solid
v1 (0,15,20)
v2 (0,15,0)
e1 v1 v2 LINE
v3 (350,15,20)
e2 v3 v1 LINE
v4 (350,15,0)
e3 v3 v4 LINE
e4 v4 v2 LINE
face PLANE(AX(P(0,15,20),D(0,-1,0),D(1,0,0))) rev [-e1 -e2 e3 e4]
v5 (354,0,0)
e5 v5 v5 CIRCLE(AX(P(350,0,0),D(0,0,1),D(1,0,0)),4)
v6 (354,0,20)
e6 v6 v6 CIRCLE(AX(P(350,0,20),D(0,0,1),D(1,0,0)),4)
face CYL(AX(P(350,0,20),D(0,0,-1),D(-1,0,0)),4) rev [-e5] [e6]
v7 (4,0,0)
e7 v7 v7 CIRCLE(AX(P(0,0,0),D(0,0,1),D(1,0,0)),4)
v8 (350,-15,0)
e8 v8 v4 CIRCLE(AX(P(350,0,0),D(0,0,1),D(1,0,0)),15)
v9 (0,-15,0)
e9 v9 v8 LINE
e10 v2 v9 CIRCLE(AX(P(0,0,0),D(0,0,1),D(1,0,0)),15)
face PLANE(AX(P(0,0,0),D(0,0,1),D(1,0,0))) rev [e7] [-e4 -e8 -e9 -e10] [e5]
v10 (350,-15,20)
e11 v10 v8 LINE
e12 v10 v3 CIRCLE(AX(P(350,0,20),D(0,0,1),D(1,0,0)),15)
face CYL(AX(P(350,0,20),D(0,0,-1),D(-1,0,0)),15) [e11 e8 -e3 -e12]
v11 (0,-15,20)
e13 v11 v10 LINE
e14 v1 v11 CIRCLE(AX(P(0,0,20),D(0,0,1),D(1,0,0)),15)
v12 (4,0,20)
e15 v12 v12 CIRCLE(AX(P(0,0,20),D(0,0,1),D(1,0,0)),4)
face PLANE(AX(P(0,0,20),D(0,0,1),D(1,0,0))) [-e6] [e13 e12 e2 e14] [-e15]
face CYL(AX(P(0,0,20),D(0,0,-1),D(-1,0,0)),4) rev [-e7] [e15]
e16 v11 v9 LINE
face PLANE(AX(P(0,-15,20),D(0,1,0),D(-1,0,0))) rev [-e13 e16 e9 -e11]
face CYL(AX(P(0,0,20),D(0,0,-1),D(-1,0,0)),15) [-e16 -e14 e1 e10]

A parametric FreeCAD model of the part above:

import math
import FreeCAD as App
import Part
import Sketcher

doc = App.newDocument("Part")
params = doc.addObject("Spreadsheet::Sheet", "Params")
for row, (alias, value) in enumerate([
    ("sketch1_radius", "15 mm"),
    ("sketch1_width", "350 mm"),
    ("pad1_length", "20 mm"),
    ("sketch2_diameter", "8 mm"),
    ("pocket1_length", "20 mm"),
], start=1):
    params.set(f"A{row}", alias)
    params.set(f"B{row}", "=" + value)
    params.setAlias(f"B{row}", alias)

body = doc.addObject("PartDesign::Body", "Body")

# Sketch on XY plane
sketch1 = body.newObject("Sketcher::SketchObject", "Sketch")
sketch1.AttachmentSupport = (doc.getObject("XY_Plane"), [""])
sketch1.MapMode = "FlatFace"
sketch1.addGeometry(Part.LineSegment(App.Vector(0, -15, 0), App.Vector(350, -15, 0)), False)
sketch1.addGeometry(Part.ArcOfCircle(Part.Circle(App.Vector(350, 0, 0), App.Vector(0, 0, 1), 15), math.radians(-90), math.radians(90)), False)
sketch1.addGeometry(Part.LineSegment(App.Vector(350, 15, 0), App.Vector(0, 15, 0)), False)
sketch1.addGeometry(Part.ArcOfCircle(Part.Circle(App.Vector(0, 0, 0), App.Vector(0, 0, 1), 15), math.radians(90), math.radians(270)), False)
sketch1.addConstraint(Sketcher.Constraint("Tangent", 0, 2, 1, 1))
sketch1.addConstraint(Sketcher.Constraint("Tangent", 1, 2, 2, 1))
sketch1.addConstraint(Sketcher.Constraint("Tangent", 2, 2, 3, 1))
sketch1.addConstraint(Sketcher.Constraint("Tangent", 3, 2, 0, 1))
sketch1.addConstraint(Sketcher.Constraint("Horizontal", 0))
sketch1.addConstraint(Sketcher.Constraint("Horizontal", 2))
sketch1.addConstraint(Sketcher.Constraint("Coincident", 3, 3, -1, 1))
sketch1.addConstraint(Sketcher.Constraint("Radius", 1, 15.0))
sketch1.addConstraint(Sketcher.Constraint("DistanceX", 0, 1, 0, 2, 350.0))
sketch1.setExpression("Constraints[7]", "Params.sketch1_radius")
sketch1.setExpression("Constraints[8]", "Params.sketch1_width")
pad1 = body.newObject("PartDesign::Pad", "Pad")
pad1.Profile = sketch1
pad1.setExpression("Length", "Params.pad1_length")

# Sketch on XY plane
sketch2 = body.newObject("Sketcher::SketchObject", "Sketch001")
sketch2.AttachmentSupport = (doc.getObject("XY_Plane"), [""])
sketch2.MapMode = "FlatFace"
sketch2.addGeometry(Part.Circle(App.Vector(0, 0, 0), App.Vector(0, 0, 1), 4), False)
sketch2.addGeometry(Part.Circle(App.Vector(350, 0, 0), App.Vector(0, 0, 1), 4), False)
sketch2.addConstraint(Sketcher.Constraint("Coincident", 0, 3, -1, 1))
sketch2.addConstraint(Sketcher.Constraint("Equal", 0, 1))
sketch2.addConstraint(Sketcher.Constraint("PointOnObject", 1, 3, -1))
sketch2.addConstraint(Sketcher.Constraint("Diameter", 0, 8.0))
sketch2.addConstraint(Sketcher.Constraint("DistanceX", -1, 1, 1, 3, 350.0))
sketch2.setExpression("Constraints[3]", "Params.sketch2_diameter")
pocket1 = body.newObject("PartDesign::Pocket", "Pocket")
pocket1.Profile = sketch2
pocket1.setExpression("Length", "Params.pocket1_length")
pocket1.Reversed = True

doc.recompute()
